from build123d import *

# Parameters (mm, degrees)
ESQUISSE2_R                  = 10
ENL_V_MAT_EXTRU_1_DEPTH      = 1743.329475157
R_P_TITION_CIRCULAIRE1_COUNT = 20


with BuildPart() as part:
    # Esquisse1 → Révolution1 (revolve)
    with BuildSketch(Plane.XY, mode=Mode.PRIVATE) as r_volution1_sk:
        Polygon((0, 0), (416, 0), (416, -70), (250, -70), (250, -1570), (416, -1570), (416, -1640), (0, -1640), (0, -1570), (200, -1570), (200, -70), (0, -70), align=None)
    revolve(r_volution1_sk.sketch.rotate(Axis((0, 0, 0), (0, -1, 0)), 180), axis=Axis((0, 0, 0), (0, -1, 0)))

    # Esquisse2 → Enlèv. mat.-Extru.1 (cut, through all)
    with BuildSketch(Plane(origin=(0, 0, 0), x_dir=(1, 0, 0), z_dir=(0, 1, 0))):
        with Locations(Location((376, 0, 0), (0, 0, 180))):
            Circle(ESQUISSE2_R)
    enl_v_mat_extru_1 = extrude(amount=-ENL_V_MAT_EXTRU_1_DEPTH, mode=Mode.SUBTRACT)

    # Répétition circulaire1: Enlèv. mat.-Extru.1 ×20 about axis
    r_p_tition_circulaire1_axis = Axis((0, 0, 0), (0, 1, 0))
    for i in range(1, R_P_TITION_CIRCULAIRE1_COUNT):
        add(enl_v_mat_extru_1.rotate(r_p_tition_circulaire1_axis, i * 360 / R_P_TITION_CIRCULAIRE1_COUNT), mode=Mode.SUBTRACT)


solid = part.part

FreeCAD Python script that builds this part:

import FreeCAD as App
import Part
import Sketcher
Q = App.Units.Quantity


def add_polygon(sketch, points):
    """Adds a closed chain of lines whose ends are joined by coincident constraints."""
    first, n = sketch.GeometryCount, len(points)
    for a, b in zip(points, points[1:] + points[:1]):
        sketch.addGeometry(Part.LineSegment(App.Vector(*a, 0), App.Vector(*b, 0)), False)
    for i in range(n):
        sketch.addConstraint(Sketcher.Constraint("Coincident", first + i, 2, first + (i + 1) % n, 1))

doc = App.newDocument("Part")
params = doc.addObject("Spreadsheet::Sheet", "Params")
for row, (alias, value) in enumerate([
    ("sketch1_width", "416 mm"),
    ("sketch1_width2", "200 mm"),
    ("sketch1_width3", "166 mm"),
    ("sketch1_height", "70 mm"),
    ("sketch1_height2", "1500 mm"),
    ("revolution_angle", "360 deg"),
    ("sketch2_diameter", "20 mm"),
], start=1):
    params.set(f"A{row}", alias)
    params.set(f"B{row}", "=" + value)
    params.setAlias(f"B{row}", alias)

body = doc.addObject("PartDesign::Body", "Body")

# Sketch on XY plane
sketch1 = body.newObject("Sketcher::SketchObject", "Sketch")
sketch1.AttachmentSupport = (doc.getObject("XY_Plane"), [""])
sketch1.MapMode = "FlatFace"
add_polygon(sketch1, [(416, 0), (0, 0), (0, -70), (200, -70), (200, -1570), (0, -1570), (0, -1640), (416, -1640), (416, -1570), (250, -1570), (250, -70), (416, -70)])  # lines 0-11
sketch1.addConstraint([
    Sketcher.Constraint("Horizontal", 0),
    Sketcher.Constraint("Vertical", 1),
    Sketcher.Constraint("Horizontal", 2),
    Sketcher.Constraint("Vertical", 3),
    Sketcher.Constraint("Horizontal", 4),
    Sketcher.Constraint("Vertical", 5),
    Sketcher.Constraint("Horizontal", 6),
    Sketcher.Constraint("Vertical", 7),
    Sketcher.Constraint("Horizontal", 8),
    Sketcher.Constraint("Vertical", 9),
    Sketcher.Constraint("Horizontal", 10),
    Sketcher.Constraint("Vertical", 11),
    Sketcher.Constraint("Coincident", 0, 2, -1, 1),
    Sketcher.Constraint("PointOnObject", 4, 2, -2),
    Sketcher.Constraint("Horizontal", 4, 2, 7, 2),
    Sketcher.Constraint("Horizontal", 2, 2, 9, 2),
    Sketcher.Constraint("Vertical", 7, 2, 10, 2),
    Sketcher.Constraint("Equal", 1, 5),
    Sketcher.Constraint("DistanceX", 0, 2, 0, 1, Q("416 mm")),
    Sketcher.Constraint("DistanceX", 2, 1, 2, 2, Q("200 mm")),
    Sketcher.Constraint("DistanceX", 8, 2, 8, 1, Q("166 mm")),
    Sketcher.Constraint("DistanceY", 1, 2, 1, 1, Q("70 mm")),
    Sketcher.Constraint("DistanceY", 3, 2, 3, 1, Q("1500 mm")),
])
sketch1.setExpression("Constraints[30]", "Params.sketch1_width")
sketch1.setExpression("Constraints[31]", "Params.sketch1_width2")
sketch1.setExpression("Constraints[32]", "Params.sketch1_width3")
sketch1.setExpression("Constraints[33]", "Params.sketch1_height")
sketch1.setExpression("Constraints[34]", "Params.sketch1_height2")
revolution = body.newObject("PartDesign::Revolution", "Revolution")
revolution.Profile = sketch1
revolution.ReferenceAxis = (sketch1, ["V_Axis"])
revolution.setExpression("Angle", "Params.revolution_angle")

# Sketch on XZ plane
sketch2 = body.newObject("Sketcher::SketchObject", "Sketch001")
sketch2.AttachmentSupport = (doc.getObject("XZ_Plane"), [""])
sketch2.MapMode = "FlatFace"
sketch2.addGeometry(Part.Circle(App.Vector(376, 0, 0), App.Vector(0, 0, 1), 10), False)
sketch2.addConstraint([
    Sketcher.Constraint("PointOnObject", 0, 3, -1),
    Sketcher.Constraint("Diameter", 0, Q("20 mm")),
    Sketcher.Constraint("DistanceX", -1, 1, 0, 3, Q("376 mm")),
])
sketch2.setExpression("Constraints[1]", "Params.sketch2_diameter")
pocket1 = body.newObject("PartDesign::Pocket", "Pocket")
pocket1.Profile = sketch2
pocket1.Type = "ThroughAll"
pocket1.Reversed = True
doc.recompute()

polarpattern = body.newObject("PartDesign::PolarPattern", "PolarPattern")
polarpattern.Originals = [pocket1]
polarpattern.Axis = (doc.getObject("Y_Axis"), [""])
polarpattern.Angle = 360
polarpattern.Occurrences = 20
body.Tip = polarpattern

doc.recompute()
